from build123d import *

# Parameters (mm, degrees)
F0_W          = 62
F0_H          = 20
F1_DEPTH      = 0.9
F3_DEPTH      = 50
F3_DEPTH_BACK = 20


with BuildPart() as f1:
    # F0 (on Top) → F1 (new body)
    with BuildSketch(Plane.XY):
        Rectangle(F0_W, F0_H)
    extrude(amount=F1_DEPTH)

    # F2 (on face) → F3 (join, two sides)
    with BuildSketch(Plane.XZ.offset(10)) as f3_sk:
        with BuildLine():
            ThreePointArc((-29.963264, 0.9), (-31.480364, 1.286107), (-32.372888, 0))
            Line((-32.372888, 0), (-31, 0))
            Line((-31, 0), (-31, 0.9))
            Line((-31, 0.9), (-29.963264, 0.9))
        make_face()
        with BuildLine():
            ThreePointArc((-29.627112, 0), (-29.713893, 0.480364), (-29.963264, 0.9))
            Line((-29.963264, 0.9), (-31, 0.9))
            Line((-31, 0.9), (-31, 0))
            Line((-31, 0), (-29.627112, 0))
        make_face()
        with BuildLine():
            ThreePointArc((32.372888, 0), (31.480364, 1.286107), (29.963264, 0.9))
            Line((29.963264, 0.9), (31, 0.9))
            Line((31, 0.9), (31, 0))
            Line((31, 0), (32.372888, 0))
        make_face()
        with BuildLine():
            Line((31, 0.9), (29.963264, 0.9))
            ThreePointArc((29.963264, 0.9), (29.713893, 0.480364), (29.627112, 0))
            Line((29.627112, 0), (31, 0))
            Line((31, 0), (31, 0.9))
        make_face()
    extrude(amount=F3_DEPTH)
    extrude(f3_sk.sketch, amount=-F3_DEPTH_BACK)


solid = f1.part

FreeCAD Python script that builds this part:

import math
import FreeCAD as App
import Part
import Sketcher

V = App.Vector
Q = App.Units.Quantity


def add_polygon(sketch, points):
    """Adds a closed chain of lines whose ends are joined by coincident constraints."""
    first, n = sketch.GeometryCount, len(points)
    for a, b in zip(points, points[1:] + points[:1]):
        sketch.addGeometry(Part.LineSegment(App.Vector(*a, 0), App.Vector(*b, 0)), False)
    for i in range(n):
        sketch.addConstraint(Sketcher.Constraint("Coincident", first + i, 2, first + (i + 1) % n, 1))

doc = App.newDocument("Part")
body = doc.addObject("PartDesign::Body", "Body")

# Sketch on XY plane
sketch1 = body.newObject("Sketcher::SketchObject", "Sketch")
sketch1.AttachmentSupport = (doc.getObject("XY_Plane"), [""])
sketch1.MapMode = "FlatFace"
add_polygon(sketch1, [(-31, 10), (-31, -10), (31, -10), (31, 10)])  # lines 0-3
sketch1.addConstraint(Sketcher.Constraint("Vertical", 0))
sketch1.addConstraint(Sketcher.Constraint("Horizontal", 1))
sketch1.addConstraint(Sketcher.Constraint("Vertical", 2))
sketch1.addConstraint(Sketcher.Constraint("Horizontal", 3))
sketch1.addConstraint(Sketcher.Constraint("Symmetric", 0, 2, 2, 2, -1, 1))
sketch1.addConstraint(Sketcher.Constraint("DistanceX", 1, 1, 1, 2, Q("62 mm")))
sketch1.addConstraint(Sketcher.Constraint("DistanceY", 0, 2, 0, 1, Q("20 mm")))
pad1 = body.newObject("PartDesign::Pad", "Pad")
pad1.Profile = sketch1
pad1.Length = 0.9

# Sketch on XZ plane
sketch2 = body.newObject("Sketcher::SketchObject", "Sketch001")
sketch2.AttachmentSupport = (doc.getObject("XZ_Plane"), [""])
sketch2.MapMode = "FlatFace"
sketch2.AttachmentOffset = App.Placement(V(0, 0, 10), App.Rotation())
sketch2.addGeometry(Part.ArcOfCircle(Part.Circle(V(-31, 0, 0), V(0, 0, 1), 1.372888), math.radians(40.961563), math.radians(179.999985)), False)
sketch2.addGeometry(Part.LineSegment(V(-32.372888, 0, 0), V(-29.627112, 0, 0)), False)
sketch2.addGeometry(Part.ArcOfCircle(Part.Circle(V(-31.000004, -0.000001, 0), V(0, 0, 1), 1.372892), math.radians(0.000058), math.radians(40.961486)), False)
sketch2.addGeometry(Part.ArcOfCircle(Part.Circle(V(31, 0, 0), V(0, 0, 1), 1.372888), math.radians(0.000015), math.radians(139.038437)), False)
sketch2.addGeometry(Part.ArcOfCircle(Part.Circle(V(31.000004, -0.000001, 0), V(0, 0, 1), 1.372892), math.radians(139.038514), math.radians(179.999942)), False)
sketch2.addGeometry(Part.LineSegment(V(29.627112, 0, 0), V(32.372888, 0, 0)), False)
sketch2.addConstraint(Sketcher.Constraint("Coincident", 0, 2, 1, 1))
sketch2.addConstraint(Sketcher.Constraint("Coincident", 1, 2, 2, 1))
sketch2.addConstraint(Sketcher.Constraint("Tangent", 2, 2, 0, 1))
sketch2.addConstraint(Sketcher.Constraint("Tangent", 3, 2, 4, 1))
sketch2.addConstraint(Sketcher.Constraint("Coincident", 4, 2, 5, 1))
sketch2.addConstraint(Sketcher.Constraint("Coincident", 5, 2, 3, 1))
sketch2.addConstraint(Sketcher.Constraint("Horizontal", 1))
sketch2.addConstraint(Sketcher.Constraint("Horizontal", 5))
sketch2.addConstraint(Sketcher.Constraint("Equal", 0, 3))
sketch2.addConstraint(Sketcher.Constraint("Equal", 2, 4))
sketch2.addConstraint(Sketcher.Constraint("Symmetric", 0, 3, 3, 3, -1, 1))
sketch2.addConstraint(Sketcher.Constraint("Symmetric", 0, 3, 4, 3, -2))
sketch2.addConstraint(Sketcher.Constraint("PointOnObject", 0, 2, -1))
sketch2.addConstraint(Sketcher.Constraint("PointOnObject", 4, 2, -1))
sketch2.addConstraint(Sketcher.Constraint("Horizontal", 2, 2, 3, 2))
sketch2.addConstraint(Sketcher.Constraint("DistanceX", 0, 3, -1, 1, Q("31 mm")))
sketch2.addConstraint(Sketcher.Constraint("DistanceY", -1, 1, 2, 2, Q("0.9 mm")))
sketch2.addConstraint(Sketcher.Constraint("Radius", 0, Q("1.372888 mm")))
pad2 = body.newObject("PartDesign::Pad", "Pad001")
pad2.Profile = sketch2
pad2.Type = "TwoLengths"
pad2.Length = 50
pad2.Length2 = 20

doc.recompute()
